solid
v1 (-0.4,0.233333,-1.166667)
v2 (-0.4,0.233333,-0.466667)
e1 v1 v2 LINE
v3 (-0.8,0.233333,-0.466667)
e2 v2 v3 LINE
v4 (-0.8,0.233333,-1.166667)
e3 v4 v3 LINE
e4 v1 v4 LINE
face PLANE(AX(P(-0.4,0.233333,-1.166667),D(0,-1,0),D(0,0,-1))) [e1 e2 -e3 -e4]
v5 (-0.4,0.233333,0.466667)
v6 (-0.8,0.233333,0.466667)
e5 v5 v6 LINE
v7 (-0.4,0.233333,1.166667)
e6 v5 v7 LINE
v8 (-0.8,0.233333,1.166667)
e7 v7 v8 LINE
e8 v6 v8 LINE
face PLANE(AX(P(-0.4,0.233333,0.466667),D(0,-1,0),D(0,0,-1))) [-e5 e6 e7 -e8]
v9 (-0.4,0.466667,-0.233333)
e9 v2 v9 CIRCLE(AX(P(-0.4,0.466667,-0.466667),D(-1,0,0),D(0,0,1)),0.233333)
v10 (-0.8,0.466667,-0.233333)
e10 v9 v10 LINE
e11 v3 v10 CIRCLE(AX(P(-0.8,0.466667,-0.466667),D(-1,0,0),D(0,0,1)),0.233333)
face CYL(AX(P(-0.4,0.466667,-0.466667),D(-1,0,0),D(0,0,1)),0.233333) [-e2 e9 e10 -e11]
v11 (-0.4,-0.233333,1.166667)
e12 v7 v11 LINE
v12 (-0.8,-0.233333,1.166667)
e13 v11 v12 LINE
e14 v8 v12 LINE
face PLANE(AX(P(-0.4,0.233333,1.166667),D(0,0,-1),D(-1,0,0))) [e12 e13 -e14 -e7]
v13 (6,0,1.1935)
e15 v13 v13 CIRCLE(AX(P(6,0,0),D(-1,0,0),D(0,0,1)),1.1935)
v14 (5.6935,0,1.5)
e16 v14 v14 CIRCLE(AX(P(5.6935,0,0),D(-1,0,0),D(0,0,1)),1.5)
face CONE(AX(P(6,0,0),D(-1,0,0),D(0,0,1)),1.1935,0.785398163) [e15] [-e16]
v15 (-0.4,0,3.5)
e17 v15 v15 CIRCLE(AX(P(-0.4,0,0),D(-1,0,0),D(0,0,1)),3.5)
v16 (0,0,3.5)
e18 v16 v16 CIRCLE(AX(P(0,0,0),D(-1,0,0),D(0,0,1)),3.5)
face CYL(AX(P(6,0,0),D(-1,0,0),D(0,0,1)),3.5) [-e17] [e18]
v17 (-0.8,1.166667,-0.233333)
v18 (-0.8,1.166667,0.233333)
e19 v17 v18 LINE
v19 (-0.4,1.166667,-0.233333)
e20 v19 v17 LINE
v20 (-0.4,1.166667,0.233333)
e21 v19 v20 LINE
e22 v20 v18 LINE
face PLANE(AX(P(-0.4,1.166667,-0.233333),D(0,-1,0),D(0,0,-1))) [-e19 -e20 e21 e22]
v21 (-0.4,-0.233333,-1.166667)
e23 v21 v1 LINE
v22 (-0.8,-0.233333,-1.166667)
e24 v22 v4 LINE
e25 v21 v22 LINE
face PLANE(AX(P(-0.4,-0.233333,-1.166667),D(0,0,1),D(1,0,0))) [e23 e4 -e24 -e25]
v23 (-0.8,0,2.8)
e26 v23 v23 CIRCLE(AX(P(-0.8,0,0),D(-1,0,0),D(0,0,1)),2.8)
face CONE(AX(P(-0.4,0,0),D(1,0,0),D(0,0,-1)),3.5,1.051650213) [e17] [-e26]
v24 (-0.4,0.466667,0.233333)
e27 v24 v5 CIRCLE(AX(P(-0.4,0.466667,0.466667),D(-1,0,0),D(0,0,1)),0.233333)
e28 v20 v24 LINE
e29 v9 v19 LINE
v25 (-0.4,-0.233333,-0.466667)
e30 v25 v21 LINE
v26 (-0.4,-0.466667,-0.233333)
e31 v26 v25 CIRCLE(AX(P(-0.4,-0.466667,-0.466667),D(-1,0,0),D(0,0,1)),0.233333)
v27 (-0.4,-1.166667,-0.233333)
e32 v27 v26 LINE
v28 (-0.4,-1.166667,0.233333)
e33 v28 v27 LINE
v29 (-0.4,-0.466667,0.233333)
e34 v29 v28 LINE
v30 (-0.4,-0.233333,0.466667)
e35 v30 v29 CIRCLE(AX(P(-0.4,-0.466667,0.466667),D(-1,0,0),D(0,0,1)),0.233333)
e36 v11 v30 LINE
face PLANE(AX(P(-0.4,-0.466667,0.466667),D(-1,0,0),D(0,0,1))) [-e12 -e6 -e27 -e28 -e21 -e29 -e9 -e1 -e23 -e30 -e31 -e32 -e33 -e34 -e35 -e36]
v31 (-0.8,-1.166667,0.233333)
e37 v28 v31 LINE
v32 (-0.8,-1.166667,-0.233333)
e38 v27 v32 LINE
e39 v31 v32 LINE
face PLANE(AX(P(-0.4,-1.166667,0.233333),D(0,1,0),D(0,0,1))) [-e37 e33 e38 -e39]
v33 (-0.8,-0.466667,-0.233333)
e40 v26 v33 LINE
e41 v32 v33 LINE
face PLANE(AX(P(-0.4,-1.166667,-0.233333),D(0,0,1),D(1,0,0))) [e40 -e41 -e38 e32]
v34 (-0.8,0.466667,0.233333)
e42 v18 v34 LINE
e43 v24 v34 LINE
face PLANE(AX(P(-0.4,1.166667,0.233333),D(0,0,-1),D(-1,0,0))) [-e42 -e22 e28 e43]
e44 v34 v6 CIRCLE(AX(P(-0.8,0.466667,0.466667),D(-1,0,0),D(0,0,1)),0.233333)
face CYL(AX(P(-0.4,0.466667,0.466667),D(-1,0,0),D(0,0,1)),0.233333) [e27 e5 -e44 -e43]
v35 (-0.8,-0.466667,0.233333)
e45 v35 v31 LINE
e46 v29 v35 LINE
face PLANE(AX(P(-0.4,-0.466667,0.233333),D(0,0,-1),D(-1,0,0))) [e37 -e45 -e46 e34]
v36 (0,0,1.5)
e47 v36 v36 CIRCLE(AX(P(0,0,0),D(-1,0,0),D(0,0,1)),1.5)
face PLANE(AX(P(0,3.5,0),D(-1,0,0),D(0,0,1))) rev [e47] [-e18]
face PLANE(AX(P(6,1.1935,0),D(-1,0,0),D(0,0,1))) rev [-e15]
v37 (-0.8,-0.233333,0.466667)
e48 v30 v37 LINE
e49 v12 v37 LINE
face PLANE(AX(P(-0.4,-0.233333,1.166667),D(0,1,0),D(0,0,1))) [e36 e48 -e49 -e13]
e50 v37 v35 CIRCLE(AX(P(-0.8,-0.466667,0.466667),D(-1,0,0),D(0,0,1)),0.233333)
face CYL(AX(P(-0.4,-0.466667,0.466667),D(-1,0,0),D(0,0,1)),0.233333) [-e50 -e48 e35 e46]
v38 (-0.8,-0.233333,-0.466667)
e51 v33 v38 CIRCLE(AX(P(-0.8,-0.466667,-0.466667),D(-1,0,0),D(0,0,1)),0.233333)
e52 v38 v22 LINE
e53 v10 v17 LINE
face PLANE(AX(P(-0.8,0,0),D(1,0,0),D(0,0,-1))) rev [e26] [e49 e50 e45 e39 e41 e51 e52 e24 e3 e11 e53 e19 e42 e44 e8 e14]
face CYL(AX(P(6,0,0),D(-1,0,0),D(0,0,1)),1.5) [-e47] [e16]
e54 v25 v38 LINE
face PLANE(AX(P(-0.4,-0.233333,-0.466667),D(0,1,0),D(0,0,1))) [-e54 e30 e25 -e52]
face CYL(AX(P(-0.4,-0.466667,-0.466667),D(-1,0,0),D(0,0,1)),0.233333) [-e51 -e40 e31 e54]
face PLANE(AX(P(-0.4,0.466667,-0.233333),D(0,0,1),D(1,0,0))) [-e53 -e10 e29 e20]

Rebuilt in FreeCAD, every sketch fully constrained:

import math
import FreeCAD as App
import Part
import Sketcher
from FreeCAD import Vector
Q = App.Units.Quantity

doc = App.newDocument("Part")
body = doc.addObject("PartDesign::Body", "Body")

# Sketch on XY plane
sketch1 = body.newObject("Sketcher::SketchObject", "Sketch")
sketch1.AttachmentSupport = (doc.getObject("XY_Plane"), [""])
sketch1.MapMode = "FlatFace"
sketch1.addGeometry(Part.LineSegment(Vector(-0.8, 2.8, 0), Vector(-0.8, 0, 0)), False)
sketch1.addGeometry(Part.LineSegment(Vector(-0.8, 0, 0), Vector(6, 0, 0)), False)
sketch1.addGeometry(Part.LineSegment(Vector(6, 0, 0), Vector(6, 1.1935, 0)), False)
sketch1.addGeometry(Part.LineSegment(Vector(6, 1.1935, 0), Vector(5.6935, 1.5, 0)), False)
sketch1.addGeometry(Part.LineSegment(Vector(5.6935, 1.5, 0), Vector(0, 1.5, 0)), False)
sketch1.addGeometry(Part.LineSegment(Vector(0, 1.5, 0), Vector(0, 3.5, 0)), False)
sketch1.addGeometry(Part.LineSegment(Vector(0, 3.5, 0), Vector(-0.4, 3.5, 0)), False)
sketch1.addGeometry(Part.LineSegment(Vector(-0.4, 3.5, 0), Vector(-0.8, 2.8, 0)), False)
sketch1.addConstraint(Sketcher.Constraint("Coincident", 0, 2, 1, 1))
sketch1.addConstraint(Sketcher.Constraint("Coincident", 1, 2, 2, 1))
sketch1.addConstraint(Sketcher.Constraint("Coincident", 2, 2, 3, 1))
sketch1.addConstraint(Sketcher.Constraint("Coincident", 3, 2, 4, 1))
sketch1.addConstraint(Sketcher.Constraint("Coincident", 4, 2, 5, 1))
sketch1.addConstraint(Sketcher.Constraint("Coincident", 5, 2, 6, 1))
sketch1.addConstraint(Sketcher.Constraint("Coincident", 6, 2, 7, 1))
sketch1.addConstraint(Sketcher.Constraint("Coincident", 7, 2, 0, 1))
sketch1.addConstraint(Sketcher.Constraint("Vertical", 0))
sketch1.addConstraint(Sketcher.Constraint("Horizontal", 1))
sketch1.addConstraint(Sketcher.Constraint("Vertical", 2))
sketch1.addConstraint(Sketcher.Constraint("Horizontal", 4))
sketch1.addConstraint(Sketcher.Constraint("Vertical", 5))
sketch1.addConstraint(Sketcher.Constraint("Horizontal", 6))
sketch1.addConstraint(Sketcher.Constraint("PointOnObject", 0, 2, -1))
sketch1.addConstraint(Sketcher.Constraint("PointOnObject", 4, 2, -2))
sketch1.addConstraint(Sketcher.Constraint("DistanceY", 5, 1, 5, 2, Q("2 mm")))
sketch1.addConstraint(Sketcher.Constraint("Angle", 3, Q("135 deg")))
sketch1.addConstraint(Sketcher.Constraint("DistanceX", 1, 1, 1, 2, Q("6.8 mm")))
sketch1.addConstraint(Sketcher.Constraint("DistanceX", 6, 2, 6, 1, Q("0.4 mm")))
sketch1.addConstraint(Sketcher.Constraint("DistanceY", 0, 2, 0, 1, Q("2.8 mm")))
sketch1.addConstraint(Sketcher.Constraint("DistanceX", -1, 1, 1, 2, Q("6 mm")))
sketch1.addConstraint(Sketcher.Constraint("DistanceY", -1, 1, 3, 2, Q("1.5 mm")))
sketch1.addConstraint(Sketcher.Constraint("DistanceX", 4, 2, 4, 1, Q("5.6935 mm")))
revolution = body.newObject("PartDesign::Revolution", "Revolution")
revolution.Profile = sketch1
revolution.ReferenceAxis = (sketch1, ["H_Axis"])
revolution.Angle = 360

# Sketch on YZ plane
sketch2 = body.newObject("Sketcher::SketchObject", "Sketch001")
sketch2.AttachmentSupport = (doc.getObject("YZ_Plane"), [""])
sketch2.MapMode = "FlatFace"
sketch2.AttachmentOffset = App.Placement(Vector(0, 0, -0.8), App.Rotation())
sketch2.addGeometry(Part.LineSegment(Vector(0.233333, 1.166667, 0), Vector(-0.233333, 1.166667, 0)), False)
sketch2.addGeometry(Part.LineSegment(Vector(-0.233333, 1.166667, 0), Vector(-0.233333, 0.466667, 0)), False)
sketch2.addGeometry(Part.ArcOfCircle(Part.Circle(Vector(-0.466667, 0.466667, 0), Vector(0, 0, 1), 0.233333), math.radians(-90), math.radians(0)), False)
sketch2.addGeometry(Part.LineSegment(Vector(-0.466667, 0.233333, 0), Vector(-1.166667, 0.233333, 0)), False)
sketch2.addGeometry(Part.LineSegment(Vector(-1.166667, 0.233333, 0), Vector(-1.166667, -0.233333, 0)), False)
sketch2.addGeometry(Part.LineSegment(Vector(-1.166667, -0.233333, 0), Vector(-0.466667, -0.233333, 0)), False)
sketch2.addGeometry(Part.ArcOfCircle(Part.Circle(Vector(-0.466667, -0.466667, 0), Vector(0, 0, 1), 0.233333), math.radians(0), math.radians(90)), False)
sketch2.addGeometry(Part.LineSegment(Vector(-0.233333, -0.466667, 0), Vector(-0.233333, -1.166667, 0)), False)
sketch2.addGeometry(Part.LineSegment(Vector(-0.233333, -1.166667, 0), Vector(0.233333, -1.166667, 0)), False)
sketch2.addGeometry(Part.LineSegment(Vector(0.233333, -1.166667, 0), Vector(0.233333, -0.466667, 0)), False)
sketch2.addGeometry(Part.ArcOfCircle(Part.Circle(Vector(0.466667, -0.466667, 0), Vector(0, 0, 1), 0.233333), math.radians(90), math.radians(180)), False)
sketch2.addGeometry(Part.LineSegment(Vector(0.466667, -0.233333, 0), Vector(1.166667, -0.233333, 0)), False)
sketch2.addGeometry(Part.LineSegment(Vector(1.166667, -0.233333, 0), Vector(1.166667, 0.233333, 0)), False)
sketch2.addGeometry(Part.LineSegment(Vector(1.166667, 0.233333, 0), Vector(0.466667, 0.233333, 0)), False)
sketch2.addGeometry(Part.ArcOfCircle(Part.Circle(Vector(0.466667, 0.466667, 0), Vector(0, 0, 1), 0.233333), math.radians(180), math.radians(270)), False)
sketch2.addGeometry(Part.LineSegment(Vector(0.233333, 0.466667, 0), Vector(0.233333, 1.166667, 0)), False)
sketch2.addConstraint(Sketcher.Constraint("Coincident", 0, 2, 1, 1))
sketch2.addConstraint(Sketcher.Constraint("Tangent", 1, 2, 2, 2))
sketch2.addConstraint(Sketcher.Constraint("Tangent", 2, 1, 3, 1))
sketch2.addConstraint(Sketcher.Constraint("Coincident", 3, 2, 4, 1))
sketch2.addConstraint(Sketcher.Constraint("Coincident", 4, 2, 5, 1))
sketch2.addConstraint(Sketcher.Constraint("Tangent", 5, 2, 6, 2))
sketch2.addConstraint(Sketcher.Constraint("Tangent", 6, 1, 7, 1))
sketch2.addConstraint(Sketcher.Constraint("Coincident", 7, 2, 8, 1))
sketch2.addConstraint(Sketcher.Constraint("Coincident", 8, 2, 9, 1))
sketch2.addConstraint(Sketcher.Constraint("Tangent", 9, 2, 10, 2))
sketch2.addConstraint(Sketcher.Constraint("Tangent", 10, 1, 11, 1))
sketch2.addConstraint(Sketcher.Constraint("Coincident", 11, 2, 12, 1))
sketch2.addConstraint(Sketcher.Constraint("Coincident", 12, 2, 13, 1))
sketch2.addConstraint(Sketcher.Constraint("Tangent", 13, 2, 14, 2))
sketch2.addConstraint(Sketcher.Constraint("Tangent", 14, 1, 15, 1))
sketch2.addConstraint(Sketcher.Constraint("Coincident", 15, 2, 0, 1))
sketch2.addConstraint(Sketcher.Constraint("Horizontal", 0))
sketch2.addConstraint(Sketcher.Constraint("Vertical", 1))
sketch2.addConstraint(Sketcher.Constraint("Horizontal", 3))
sketch2.addConstraint(Sketcher.Constraint("Vertical", 4))
sketch2.addConstraint(Sketcher.Constraint("Horizontal", 5))
sketch2.addConstraint(Sketcher.Constraint("Vertical", 7))
sketch2.addConstraint(Sketcher.Constraint("Horizontal", 8))
sketch2.addConstraint(Sketcher.Constraint("Vertical", 9))
sketch2.addConstraint(Sketcher.Constraint("Horizontal", 11))
sketch2.addConstraint(Sketcher.Constraint("Vertical", 12))
sketch2.addConstraint(Sketcher.Constraint("Horizontal", 13))
sketch2.addConstraint(Sketcher.Constraint("Vertical", 15))
sketch2.addConstraint(Sketcher.Constraint("Equal", 2, 6))
sketch2.addConstraint(Sketcher.Constraint("Equal", 6, 10))
sketch2.addConstraint(Sketcher.Constraint("Equal", 10, 14))
sketch2.addConstraint(Sketcher.Constraint("Symmetric", 2, 3, 10, 3, -1, 1))
sketch2.addConstraint(Sketcher.Constraint("Symmetric", 6, 3, 14, 3, -1, 1))
sketch2.addConstraint(Sketcher.Constraint("Symmetric", 6, 3, 10, 3, -2))
sketch2.addConstraint(Sketcher.Constraint("Equal", 5, 11))
sketch2.addConstraint(Sketcher.Constraint("Equal", 13, 1))
sketch2.addConstraint(Sketcher.Constraint("Equal", 8, 4))
sketch2.addConstraint(Sketcher.Constraint("Equal", 1, 7))
sketch2.addConstraint(Sketcher.Constraint("DistanceX", 3, 2, 3, 1, Q("0.7 mm")))
sketch2.addConstraint(Sketcher.Constraint("DistanceX", 0, 2, 14, 3, Q("0.7 mm")))
sketch2.addConstraint(Sketcher.Constraint("Radius", 2, Q("0.233333 mm")))
pocket1 = body.newObject("PartDesign::Pocket", "Pocket")
pocket1.Profile = sketch2
pocket1.Length = 0.4
pocket1.Reversed = True

doc.recompute()
